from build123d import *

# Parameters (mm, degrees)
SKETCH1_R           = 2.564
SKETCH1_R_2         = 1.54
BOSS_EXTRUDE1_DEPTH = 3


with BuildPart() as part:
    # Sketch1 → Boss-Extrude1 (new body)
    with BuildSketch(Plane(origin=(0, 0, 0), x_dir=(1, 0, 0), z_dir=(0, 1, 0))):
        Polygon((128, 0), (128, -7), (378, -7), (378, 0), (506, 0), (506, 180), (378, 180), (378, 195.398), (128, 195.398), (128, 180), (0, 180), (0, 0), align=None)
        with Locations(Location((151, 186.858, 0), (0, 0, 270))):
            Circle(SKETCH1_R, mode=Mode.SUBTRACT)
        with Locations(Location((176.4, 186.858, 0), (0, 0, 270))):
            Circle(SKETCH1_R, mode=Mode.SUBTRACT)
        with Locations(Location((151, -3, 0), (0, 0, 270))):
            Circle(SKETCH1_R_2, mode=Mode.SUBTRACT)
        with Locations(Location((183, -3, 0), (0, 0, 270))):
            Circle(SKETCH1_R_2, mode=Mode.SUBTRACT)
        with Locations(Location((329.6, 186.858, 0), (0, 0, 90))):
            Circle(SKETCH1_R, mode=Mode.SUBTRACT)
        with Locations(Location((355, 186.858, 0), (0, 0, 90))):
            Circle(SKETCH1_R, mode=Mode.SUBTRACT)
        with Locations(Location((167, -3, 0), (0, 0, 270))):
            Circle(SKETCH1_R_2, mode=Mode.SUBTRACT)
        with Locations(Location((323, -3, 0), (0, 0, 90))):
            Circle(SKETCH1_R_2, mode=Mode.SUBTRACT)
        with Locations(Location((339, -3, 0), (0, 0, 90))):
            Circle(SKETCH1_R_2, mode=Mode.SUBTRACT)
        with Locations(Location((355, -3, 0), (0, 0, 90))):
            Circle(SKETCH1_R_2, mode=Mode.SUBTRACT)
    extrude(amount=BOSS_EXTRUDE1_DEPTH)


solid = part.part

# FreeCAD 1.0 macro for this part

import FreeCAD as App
import Part
import Sketcher
from FreeCAD import Vector


def add_polygon(sketch, points):
    """Adds a closed chain of lines whose ends are joined by coincident constraints."""
    first, n = sketch.GeometryCount, len(points)
    for a, b in zip(points, points[1:] + points[:1]):
        sketch.addGeometry(Part.LineSegment(App.Vector(*a, 0), App.Vector(*b, 0)), False)
    for i in range(n):
        sketch.addConstraint(Sketcher.Constraint("Coincident", first + i, 2, first + (i + 1) % n, 1))

doc = App.newDocument("Part")
body = doc.addObject("PartDesign::Body", "Body")

# Sketch on XZ plane
sketch1 = body.newObject("Sketcher::SketchObject", "Sketch")
sketch1.AttachmentSupport = (doc.getObject("XZ_Plane"), [""])
sketch1.MapMode = "FlatFace"
add_polygon(sketch1, [(128, 0), (128, 7), (378, 7), (378, 0), (506, 0), (506, -180), (378, -180), (378, -195.4), (128, -195.4), (128, -180), (0, -180), (0, 0)])  # lines 0-11
sketch1.addGeometry(Part.Circle(Vector(151, 3, 0), Vector(0, 0, 1), 1.5), False)  # 12
sketch1.addGeometry(Part.Circle(Vector(167, 3, 0), Vector(0, 0, 1), 1.5), False)  # 13
sketch1.addGeometry(Part.Circle(Vector(183, 3, 0), Vector(0, 0, 1), 1.5), False)  # 14
sketch1.addGeometry(Part.Circle(Vector(323, 3, 0), Vector(0, 0, 1), 1.5), False)  # 15
sketch1.addGeometry(Part.Circle(Vector(339, 3, 0), Vector(0, 0, 1), 1.5), False)  # 16
sketch1.addGeometry(Part.Circle(Vector(355, 3, 0), Vector(0, 0, 1), 1.5), False)  # 17
sketch1.addGeometry(Part.Circle(Vector(151, -186.9, 0), Vector(0, 0, 1), 2.6), False)  # 18
sketch1.addGeometry(Part.Circle(Vector(176.4, -186.9, 0), Vector(0, 0, 1), 2.6), False)  # 19
sketch1.addGeometry(Part.Circle(Vector(329.6, -186.9, 0), Vector(0, 0, 1), 2.6), False)  # 20
sketch1.addGeometry(Part.Circle(Vector(355, -186.9, 0), Vector(0, 0, 1), 2.6), False)  # 21
sketch1.addConstraint([
    Sketcher.Constraint("Vertical", 0),
    Sketcher.Constraint("Horizontal", 1),
    Sketcher.Constraint("Vertical", 2),
    Sketcher.Constraint("Horizontal", 3),
    Sketcher.Constraint("Vertical", 4),
    Sketcher.Constraint("Horizontal", 5),
    Sketcher.Constraint("Vertical", 6),
    Sketcher.Constraint("Horizontal", 7),
    Sketcher.Constraint("Vertical", 8),
    Sketcher.Constraint("Horizontal", 9),
    Sketcher.Constraint("Vertical", 10),
    Sketcher.Constraint("Horizontal", 11),
    Sketcher.Constraint("Coincident", 10, 2, -1, 1),
    Sketcher.Constraint("Equal", 12, 13),
    Sketcher.Constraint("Equal", 13, 14),
    Sketcher.Constraint("Equal", 14, 15),
    Sketcher.Constraint("Equal", 15, 16),
    Sketcher.Constraint("Equal", 16, 17),
    Sketcher.Constraint("Equal", 18, 19),
    Sketcher.Constraint("Equal", 19, 20),
    Sketcher.Constraint("Equal", 20, 21),
    Sketcher.Constraint("PointOnObject", 2, 2, -1),
    Sketcher.Constraint("Horizontal", 12, 3, 13, 3),
    Sketcher.Constraint("Horizontal", 13, 3, 14, 3),
    Sketcher.Constraint("Horizontal", 14, 3, 15, 3),
    Sketcher.Constraint("Horizontal", 15, 3, 16, 3),
    Sketcher.Constraint("Horizontal", 16, 3, 17, 3),
    Sketcher.Constraint("Horizontal", 18, 3, 19, 3),
    Sketcher.Constraint("Horizontal", 19, 3, 20, 3),
    Sketcher.Constraint("Horizontal", 20, 3, 21, 3),
    Sketcher.Constraint("Horizontal", 5, 2, 8, 2),
    Sketcher.Constraint("Vertical", 12, 3, 18, 3),
    Sketcher.Constraint("Vertical", 17, 3, 21, 3),
    Sketcher.Constraint("Vertical", 2, 2, 5, 2),
    Sketcher.Constraint("Vertical", 0, 2, 7, 2),
    Sketcher.Constraint("Equal", 5, 9),
    Sketcher.Constraint("Diameter", 12, 3.08),
    Sketcher.Constraint("DistanceX", 1, 1, 1, 2, 250.0),
    Sketcher.Constraint("DistanceX", 3, 1, 3, 2, 128.0),
    Sketcher.Constraint("DistanceY", 0, 1, 0, 2, 7.0),
    Sketcher.Constraint("DistanceY", 4, 2, 4, 1, 180.0),
    Sketcher.Constraint("Diameter", 18, 5.128),
    Sketcher.Constraint("DistanceX", -1, 1, 12, 3, 151.0),
    Sketcher.Constraint("DistanceY", -1, 1, 12, 3, 3.0),
    Sketcher.Constraint("DistanceX", -1, 1, 13, 3, 167.0),
    Sketcher.Constraint("DistanceX", -1, 1, 14, 3, 183.0),
    Sketcher.Constraint("DistanceX", -1, 1, 15, 3, 323.0),
    Sketcher.Constraint("DistanceX", -1, 1, 16, 3, 339.0),
    Sketcher.Constraint("DistanceX", -1, 1, 17, 3, 355.0),
    Sketcher.Constraint("DistanceX", -1, 1, 19, 3, 176.4),
    Sketcher.Constraint("DistanceX", -1, 1, 20, 3, 329.6),
    Sketcher.Constraint("DistanceY", 6, 2, 6, 1, 15.398),
    Sketcher.Constraint("DistanceY", 6, 2, 21, 3, 8.54),
])
pad1 = body.newObject("PartDesign::Pad", "Pad")
pad1.Profile = sketch1
pad1.Length = 3
pad1.Reversed = True

doc.recompute()
